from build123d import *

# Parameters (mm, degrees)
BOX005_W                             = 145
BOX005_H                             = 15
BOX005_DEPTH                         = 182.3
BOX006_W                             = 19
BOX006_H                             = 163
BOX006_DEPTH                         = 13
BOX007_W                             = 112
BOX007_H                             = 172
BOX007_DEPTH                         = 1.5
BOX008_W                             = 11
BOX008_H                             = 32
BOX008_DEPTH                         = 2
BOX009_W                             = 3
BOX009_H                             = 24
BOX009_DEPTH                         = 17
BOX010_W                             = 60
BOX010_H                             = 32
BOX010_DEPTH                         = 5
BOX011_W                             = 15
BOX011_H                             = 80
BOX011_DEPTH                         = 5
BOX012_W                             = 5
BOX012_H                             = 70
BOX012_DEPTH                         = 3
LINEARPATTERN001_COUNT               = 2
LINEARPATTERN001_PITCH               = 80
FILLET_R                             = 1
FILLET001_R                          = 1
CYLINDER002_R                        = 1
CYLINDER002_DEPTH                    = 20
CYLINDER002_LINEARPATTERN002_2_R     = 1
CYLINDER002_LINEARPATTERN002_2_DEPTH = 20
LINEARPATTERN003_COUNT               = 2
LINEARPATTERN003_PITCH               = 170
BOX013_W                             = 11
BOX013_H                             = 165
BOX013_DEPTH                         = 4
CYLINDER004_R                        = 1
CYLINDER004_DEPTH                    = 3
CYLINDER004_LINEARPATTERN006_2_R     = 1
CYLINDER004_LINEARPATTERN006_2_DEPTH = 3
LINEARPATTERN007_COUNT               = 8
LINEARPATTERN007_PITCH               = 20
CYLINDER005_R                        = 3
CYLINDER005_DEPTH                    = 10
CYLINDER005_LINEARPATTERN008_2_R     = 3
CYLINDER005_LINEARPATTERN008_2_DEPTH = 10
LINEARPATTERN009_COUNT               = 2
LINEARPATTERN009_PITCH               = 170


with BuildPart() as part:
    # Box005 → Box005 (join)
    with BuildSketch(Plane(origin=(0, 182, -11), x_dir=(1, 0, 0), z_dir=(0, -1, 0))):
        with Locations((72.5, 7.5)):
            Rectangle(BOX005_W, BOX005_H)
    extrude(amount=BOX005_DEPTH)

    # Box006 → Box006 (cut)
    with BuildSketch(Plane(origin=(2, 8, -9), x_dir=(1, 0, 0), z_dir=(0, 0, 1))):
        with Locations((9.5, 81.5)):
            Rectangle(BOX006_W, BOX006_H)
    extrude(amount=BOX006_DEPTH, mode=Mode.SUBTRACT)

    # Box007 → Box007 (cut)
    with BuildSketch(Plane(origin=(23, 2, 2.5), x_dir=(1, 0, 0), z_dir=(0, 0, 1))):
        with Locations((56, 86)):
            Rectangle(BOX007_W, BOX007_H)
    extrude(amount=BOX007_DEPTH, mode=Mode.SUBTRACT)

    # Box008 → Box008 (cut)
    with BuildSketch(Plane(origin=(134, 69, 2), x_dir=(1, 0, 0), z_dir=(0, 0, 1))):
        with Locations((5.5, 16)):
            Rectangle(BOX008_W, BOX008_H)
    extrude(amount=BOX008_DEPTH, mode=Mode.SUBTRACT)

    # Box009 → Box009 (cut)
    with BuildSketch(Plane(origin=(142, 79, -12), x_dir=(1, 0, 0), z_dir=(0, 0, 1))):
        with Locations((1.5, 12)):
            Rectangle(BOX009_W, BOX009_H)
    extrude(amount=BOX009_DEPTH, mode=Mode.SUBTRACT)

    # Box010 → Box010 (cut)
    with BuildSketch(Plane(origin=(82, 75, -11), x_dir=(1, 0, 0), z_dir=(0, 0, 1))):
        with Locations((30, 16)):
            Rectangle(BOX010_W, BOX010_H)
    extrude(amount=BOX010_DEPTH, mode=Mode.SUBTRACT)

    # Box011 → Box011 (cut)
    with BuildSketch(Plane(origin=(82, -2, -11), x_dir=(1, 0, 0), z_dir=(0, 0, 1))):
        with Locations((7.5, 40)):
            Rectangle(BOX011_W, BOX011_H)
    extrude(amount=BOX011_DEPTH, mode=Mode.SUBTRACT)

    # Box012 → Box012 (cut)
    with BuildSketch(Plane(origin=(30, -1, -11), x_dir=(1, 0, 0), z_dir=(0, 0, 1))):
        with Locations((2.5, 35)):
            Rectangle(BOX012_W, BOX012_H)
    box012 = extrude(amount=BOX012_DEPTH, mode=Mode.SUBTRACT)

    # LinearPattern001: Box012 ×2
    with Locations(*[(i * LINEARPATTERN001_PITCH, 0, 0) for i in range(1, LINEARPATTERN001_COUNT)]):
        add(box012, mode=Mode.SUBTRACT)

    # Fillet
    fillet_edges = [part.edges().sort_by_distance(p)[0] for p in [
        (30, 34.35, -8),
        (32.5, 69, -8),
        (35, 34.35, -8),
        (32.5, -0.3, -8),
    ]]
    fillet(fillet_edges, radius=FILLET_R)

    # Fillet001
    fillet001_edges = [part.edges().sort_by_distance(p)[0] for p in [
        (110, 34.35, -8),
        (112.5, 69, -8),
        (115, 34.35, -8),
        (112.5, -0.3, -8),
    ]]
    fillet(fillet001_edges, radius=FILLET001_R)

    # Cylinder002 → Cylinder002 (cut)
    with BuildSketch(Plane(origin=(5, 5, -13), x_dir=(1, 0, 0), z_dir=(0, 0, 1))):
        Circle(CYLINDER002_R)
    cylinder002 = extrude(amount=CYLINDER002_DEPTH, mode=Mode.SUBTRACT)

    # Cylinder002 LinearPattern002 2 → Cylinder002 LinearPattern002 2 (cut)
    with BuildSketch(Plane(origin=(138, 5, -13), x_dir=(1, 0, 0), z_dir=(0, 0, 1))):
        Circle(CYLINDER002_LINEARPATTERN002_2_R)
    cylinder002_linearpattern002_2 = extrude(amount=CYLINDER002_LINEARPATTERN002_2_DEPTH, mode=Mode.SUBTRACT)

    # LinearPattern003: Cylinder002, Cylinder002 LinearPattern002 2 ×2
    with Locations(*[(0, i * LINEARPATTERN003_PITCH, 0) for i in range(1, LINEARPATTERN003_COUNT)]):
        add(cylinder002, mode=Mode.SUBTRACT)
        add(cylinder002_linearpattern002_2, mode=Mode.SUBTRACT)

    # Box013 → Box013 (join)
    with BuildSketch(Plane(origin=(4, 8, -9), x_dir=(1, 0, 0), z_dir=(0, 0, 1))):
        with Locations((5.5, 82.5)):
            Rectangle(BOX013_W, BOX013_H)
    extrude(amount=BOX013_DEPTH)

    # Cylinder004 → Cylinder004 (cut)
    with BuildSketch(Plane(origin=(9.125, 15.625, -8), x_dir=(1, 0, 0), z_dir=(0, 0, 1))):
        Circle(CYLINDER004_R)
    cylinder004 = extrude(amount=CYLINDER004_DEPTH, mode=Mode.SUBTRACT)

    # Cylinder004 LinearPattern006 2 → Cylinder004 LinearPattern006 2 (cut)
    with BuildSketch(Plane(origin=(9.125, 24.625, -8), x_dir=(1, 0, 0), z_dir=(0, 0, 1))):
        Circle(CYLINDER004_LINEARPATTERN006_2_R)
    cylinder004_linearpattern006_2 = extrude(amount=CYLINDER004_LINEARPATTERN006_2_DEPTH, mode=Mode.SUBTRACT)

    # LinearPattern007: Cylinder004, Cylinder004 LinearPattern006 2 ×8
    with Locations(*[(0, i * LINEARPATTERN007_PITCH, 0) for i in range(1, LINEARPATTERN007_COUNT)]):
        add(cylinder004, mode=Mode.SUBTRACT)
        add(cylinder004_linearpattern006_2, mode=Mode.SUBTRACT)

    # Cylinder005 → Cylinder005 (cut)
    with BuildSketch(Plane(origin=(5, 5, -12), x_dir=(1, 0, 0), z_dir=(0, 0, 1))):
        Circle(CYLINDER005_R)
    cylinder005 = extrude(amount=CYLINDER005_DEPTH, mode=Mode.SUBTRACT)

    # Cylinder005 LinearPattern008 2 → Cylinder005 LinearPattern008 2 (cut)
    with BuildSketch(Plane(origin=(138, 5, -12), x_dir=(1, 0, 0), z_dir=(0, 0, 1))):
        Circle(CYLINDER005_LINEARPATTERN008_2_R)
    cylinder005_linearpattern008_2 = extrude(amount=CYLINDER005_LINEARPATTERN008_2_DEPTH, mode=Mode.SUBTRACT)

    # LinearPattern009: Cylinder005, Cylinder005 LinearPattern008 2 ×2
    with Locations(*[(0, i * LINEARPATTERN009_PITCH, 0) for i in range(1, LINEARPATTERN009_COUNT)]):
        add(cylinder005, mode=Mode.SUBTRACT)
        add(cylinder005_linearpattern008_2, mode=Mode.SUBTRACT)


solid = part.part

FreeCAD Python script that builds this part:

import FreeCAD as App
import Part
import Sketcher


def edges_at(feature, points):
    """Names of the edges that pass closest to the given points."""
    edges = feature.Shape.Edges
    near = lambda p: min(range(len(edges)), key=lambda i: edges[i].distToShape(Part.Vertex(*p))[0])
    return sorted({f"Edge{near(p) + 1}" for p in points})


def add_polygon(sketch, points):
    """Adds a closed chain of lines whose ends are joined by coincident constraints."""
    first, n = sketch.GeometryCount, len(points)
    for a, b in zip(points, points[1:] + points[:1]):
        sketch.addGeometry(Part.LineSegment(App.Vector(*a, 0), App.Vector(*b, 0)), False)
    for i in range(n):
        sketch.addConstraint(Sketcher.Constraint("Coincident", first + i, 2, first + (i + 1) % n, 1))

doc = App.newDocument("Part")
body = doc.addObject("PartDesign::Body", "Body")

# Sketch on XZ plane
sketch1 = body.newObject("Sketcher::SketchObject", "Sketch")
sketch1.AttachmentSupport = (doc.getObject("XZ_Plane"), [""])
sketch1.MapMode = "FlatFace"
sketch1.AttachmentOffset = App.Placement(App.Vector(0, 0, -182), App.Rotation())
add_polygon(sketch1, [(0, 4), (0, -11), (145, -11), (145, 4)])  # lines 0-3
sketch1.addConstraint([
    Sketcher.Constraint("Vertical", 0),
    Sketcher.Constraint("Horizontal", 1),
    Sketcher.Constraint("Vertical", 2),
    Sketcher.Constraint("Horizontal", 3),
    Sketcher.Constraint("PointOnObject", 0, 2, -2),
    Sketcher.Constraint("DistanceX", 1, 1, 1, 2, 145.0),
    Sketcher.Constraint("DistanceY", 0, 2, 0, 1, 15.0),
    Sketcher.Constraint("DistanceY", 0, 2, -1, 1, 11.0),
])
pad1 = body.newObject("PartDesign::Pad", "Pad")
pad1.Profile = sketch1
pad1.Length = 182.3

# Sketch on XY plane
sketch2 = body.newObject("Sketcher::SketchObject", "Sketch001")
sketch2.AttachmentSupport = (doc.getObject("XY_Plane"), [""])
sketch2.MapMode = "FlatFace"
sketch2.AttachmentOffset = App.Placement(App.Vector(0, 0, -9), App.Rotation())
add_polygon(sketch2, [(2, 171), (2, 8), (21, 8), (21, 171)])  # lines 0-3
sketch2.addConstraint([
    Sketcher.Constraint("Vertical", 0),
    Sketcher.Constraint("Horizontal", 1),
    Sketcher.Constraint("Vertical", 2),
    Sketcher.Constraint("Horizontal", 3),
    Sketcher.Constraint("DistanceX", 1, 1, 1, 2, 19.0),
    Sketcher.Constraint("DistanceY", 0, 2, 0, 1, 163.0),
    Sketcher.Constraint("DistanceX", -1, 1, 0, 2, 2.0),
    Sketcher.Constraint("DistanceY", -1, 1, 0, 2, 8.0),
])
pocket1 = body.newObject("PartDesign::Pocket", "Pocket")
pocket1.Profile = sketch2
pocket1.Length = 13
pocket1.Reversed = True

# Sketch on XY plane
sketch3 = body.newObject("Sketcher::SketchObject", "Sketch002")
sketch3.AttachmentSupport = (doc.getObject("XY_Plane"), [""])
sketch3.MapMode = "FlatFace"
sketch3.AttachmentOffset = App.Placement(App.Vector(0, 0, 2.5), App.Rotation())
add_polygon(sketch3, [(23, 174), (23, 2), (135, 2), (135, 174)])  # lines 0-3
sketch3.addConstraint([
    Sketcher.Constraint("Vertical", 0),
    Sketcher.Constraint("Horizontal", 1),
    Sketcher.Constraint("Vertical", 2),
    Sketcher.Constraint("Horizontal", 3),
    Sketcher.Constraint("DistanceX", 1, 1, 1, 2, 112.0),
    Sketcher.Constraint("DistanceY", 0, 2, 0, 1, 172.0),
    Sketcher.Constraint("DistanceX", -1, 1, 0, 2, 23.0),
    Sketcher.Constraint("DistanceY", -1, 1, 0, 2, 2.0),
])
pocket2 = body.newObject("PartDesign::Pocket", "Pocket001")
pocket2.Profile = sketch3
pocket2.Length = 1.5
pocket2.Reversed = True

# Sketch on XY plane
sketch4 = body.newObject("Sketcher::SketchObject", "Sketch003")
sketch4.AttachmentSupport = (doc.getObject("XY_Plane"), [""])
sketch4.MapMode = "FlatFace"
sketch4.AttachmentOffset = App.Placement(App.Vector(0, 0, 2), App.Rotation())
add_polygon(sketch4, [(134, 101), (134, 69), (145, 69), (145, 101)])  # lines 0-3
sketch4.addConstraint([
    Sketcher.Constraint("Vertical", 0),
    Sketcher.Constraint("Horizontal", 1),
    Sketcher.Constraint("Vertical", 2),
    Sketcher.Constraint("Horizontal", 3),
    Sketcher.Constraint("DistanceX", 1, 1, 1, 2, 11.0),
    Sketcher.Constraint("DistanceY", 0, 2, 0, 1, 32.0),
    Sketcher.Constraint("DistanceX", -1, 1, 0, 2, 134.0),
    Sketcher.Constraint("DistanceY", -1, 1, 0, 2, 69.0),
])
pocket3 = body.newObject("PartDesign::Pocket", "Pocket002")
pocket3.Profile = sketch4
pocket3.Length = 2
pocket3.Reversed = True

# Sketch on XY plane
sketch5 = body.newObject("Sketcher::SketchObject", "Sketch004")
sketch5.AttachmentSupport = (doc.getObject("XY_Plane"), [""])
sketch5.MapMode = "FlatFace"
sketch5.AttachmentOffset = App.Placement(App.Vector(0, 0, -12), App.Rotation())
add_polygon(sketch5, [(142, 103), (142, 79), (145, 79), (145, 103)])  # lines 0-3
sketch5.addConstraint([
    Sketcher.Constraint("Vertical", 0),
    Sketcher.Constraint("Horizontal", 1),
    Sketcher.Constraint("Vertical", 2),
    Sketcher.Constraint("Horizontal", 3),
    Sketcher.Constraint("DistanceX", 1, 1, 1, 2, 3.0),
    Sketcher.Constraint("DistanceY", 0, 2, 0, 1, 24.0),
    Sketcher.Constraint("DistanceX", -1, 1, 0, 2, 142.0),
    Sketcher.Constraint("DistanceY", -1, 1, 0, 2, 79.0),
])
pocket4 = body.newObject("PartDesign::Pocket", "Pocket003")
pocket4.Profile = sketch5
pocket4.Length = 17
pocket4.Reversed = True

# Sketch on XY plane
sketch6 = body.newObject("Sketcher::SketchObject", "Sketch005")
sketch6.AttachmentSupport = (doc.getObject("XY_Plane"), [""])
sketch6.MapMode = "FlatFace"
sketch6.AttachmentOffset = App.Placement(App.Vector(0, 0, -11), App.Rotation())
add_polygon(sketch6, [(82, 107), (82, 75), (142, 75), (142, 107)])  # lines 0-3
sketch6.addConstraint([
    Sketcher.Constraint("Vertical", 0),
    Sketcher.Constraint("Horizontal", 1),
    Sketcher.Constraint("Vertical", 2),
    Sketcher.Constraint("Horizontal", 3),
    Sketcher.Constraint("DistanceX", 1, 1, 1, 2, 60.0),
    Sketcher.Constraint("DistanceY", 0, 2, 0, 1, 32.0),
    Sketcher.Constraint("DistanceX", -1, 1, 0, 2, 82.0),
    Sketcher.Constraint("DistanceY", -1, 1, 0, 2, 75.0),
])
pocket5 = body.newObject("PartDesign::Pocket", "Pocket004")
pocket5.Profile = sketch6
pocket5.Length = 5
pocket5.Reversed = True

# Sketch on XY plane
sketch7 = body.newObject("Sketcher::SketchObject", "Sketch006")
sketch7.AttachmentSupport = (doc.getObject("XY_Plane"), [""])
sketch7.MapMode = "FlatFace"
sketch7.AttachmentOffset = App.Placement(App.Vector(0, 0, -11), App.Rotation())
add_polygon(sketch7, [(82, 78), (82, -2), (97, -2), (97, 78)])  # lines 0-3
sketch7.addConstraint([
    Sketcher.Constraint("Vertical", 0),
    Sketcher.Constraint("Horizontal", 1),
    Sketcher.Constraint("Vertical", 2),
    Sketcher.Constraint("Horizontal", 3),
    Sketcher.Constraint("DistanceX", 1, 1, 1, 2, 15.0),
    Sketcher.Constraint("DistanceY", 0, 2, 0, 1, 80.0),
    Sketcher.Constraint("DistanceX", -1, 1, 0, 2, 82.0),
    Sketcher.Constraint("DistanceY", 0, 2, -1, 1, 2.0),
])
pocket6 = body.newObject("PartDesign::Pocket", "Pocket005")
pocket6.Profile = sketch7
pocket6.Length = 5
pocket6.Reversed = True

# Sketch on XY plane
sketch8 = body.newObject("Sketcher::SketchObject", "Sketch007")
sketch8.AttachmentSupport = (doc.getObject("XY_Plane"), [""])
sketch8.MapMode = "FlatFace"
sketch8.AttachmentOffset = App.Placement(App.Vector(0, 0, -11), App.Rotation())
add_polygon(sketch8, [(30, 69), (30, -1), (35, -1), (35, 69)])  # lines 0-3
sketch8.addConstraint([
    Sketcher.Constraint("Vertical", 0),
    Sketcher.Constraint("Horizontal", 1),
    Sketcher.Constraint("Vertical", 2),
    Sketcher.Constraint("Horizontal", 3),
    Sketcher.Constraint("DistanceX", 1, 1, 1, 2, 5.0),
    Sketcher.Constraint("DistanceY", 0, 2, 0, 1, 70.0),
    Sketcher.Constraint("DistanceX", -1, 1, 0, 2, 30.0),
    Sketcher.Constraint("DistanceY", 0, 2, -1, 1, 1.0),
])
pocket7 = body.newObject("PartDesign::Pocket", "Pocket006")
pocket7.Profile = sketch8
pocket7.Length = 3
pocket7.Reversed = True
doc.recompute()

linearpattern = body.newObject("PartDesign::LinearPattern", "LinearPattern")
linearpattern.Originals = [pocket7]
linearpattern.Direction = (doc.getObject("X_Axis"), [""])
linearpattern.Mode = "offset"
linearpattern.Offset = 80
linearpattern.Occurrences = 2
body.Tip = linearpattern
doc.recompute()

fillet = body.newObject("PartDesign::Fillet", "Fillet")
fillet.Base = (linearpattern, edges_at(linearpattern, [
    (30, 34.35, -8),
    (32.5, 69, -8),
    (35, 34.35, -8),
    (32.5, -0.3, -8),
]))
fillet.Radius = 1
doc.recompute()

fillet2 = body.newObject("PartDesign::Fillet", "Fillet001")
fillet2.Base = (fillet, edges_at(fillet, [
    (110, 34.35, -8),
    (112.5, 69, -8),
    (115, 34.35, -8),
    (112.5, -0.3, -8),
]))
fillet2.Radius = 1

# Sketch on XY plane
sketch9 = body.newObject("Sketcher::SketchObject", "Sketch008")
sketch9.AttachmentSupport = (doc.getObject("XY_Plane"), [""])
sketch9.MapMode = "FlatFace"
sketch9.AttachmentOffset = App.Placement(App.Vector(0, 0, -13), App.Rotation())
sketch9.addGeometry(Part.Circle(App.Vector(5, 5, 0), App.Vector(0, 0, 1), 1), False)
sketch9.addConstraint([
    Sketcher.Constraint("Diameter", 0, 2.0),
    Sketcher.Constraint("DistanceX", -1, 1, 0, 3, 5.0),
    Sketcher.Constraint("DistanceY", -1, 1, 0, 3, 5.0),
])
pocket8 = body.newObject("PartDesign::Pocket", "Pocket007")
pocket8.Profile = sketch9
pocket8.Length = 20
pocket8.Reversed = True

# Sketch on XY plane
sketch10 = body.newObject("Sketcher::SketchObject", "Sketch009")
sketch10.AttachmentSupport = (doc.getObject("XY_Plane"), [""])
sketch10.MapMode = "FlatFace"
sketch10.AttachmentOffset = App.Placement(App.Vector(0, 0, -13), App.Rotation())
sketch10.addGeometry(Part.Circle(App.Vector(138, 5, 0), App.Vector(0, 0, 1), 1), False)
sketch10.addConstraint([
    Sketcher.Constraint("Diameter", 0, 2.0),
    Sketcher.Constraint("DistanceX", -1, 1, 0, 3, 138.0),
    Sketcher.Constraint("DistanceY", -1, 1, 0, 3, 5.0),
])
pocket9 = body.newObject("PartDesign::Pocket", "Pocket008")
pocket9.Profile = sketch10
pocket9.Length = 20
pocket9.Reversed = True
doc.recompute()

linearpattern2 = body.newObject("PartDesign::LinearPattern", "LinearPattern001")
linearpattern2.Originals = [pocket8, pocket9]
linearpattern2.Direction = (doc.getObject("Y_Axis"), [""])
linearpattern2.Mode = "offset"
linearpattern2.Offset = 170
linearpattern2.Occurrences = 2
body.Tip = linearpattern2

# Sketch on XY plane
sketch11 = body.newObject("Sketcher::SketchObject", "Sketch010")
sketch11.AttachmentSupport = (doc.getObject("XY_Plane"), [""])
sketch11.MapMode = "FlatFace"
sketch11.AttachmentOffset = App.Placement(App.Vector(0, 0, -9), App.Rotation())
add_polygon(sketch11, [(4, 173), (4, 8), (15, 8), (15, 173)])  # lines 0-3
sketch11.addConstraint([
    Sketcher.Constraint("Vertical", 0),
    Sketcher.Constraint("Horizontal", 1),
    Sketcher.Constraint("Vertical", 2),
    Sketcher.Constraint("Horizontal", 3),
    Sketcher.Constraint("DistanceX", 1, 1, 1, 2, 11.0),
    Sketcher.Constraint("DistanceY", 0, 2, 0, 1, 165.0),
    Sketcher.Constraint("DistanceX", -1, 1, 0, 2, 4.0),
    Sketcher.Constraint("DistanceY", -1, 1, 0, 2, 8.0),
])
pad2 = body.newObject("PartDesign::Pad", "Pad001")
pad2.Profile = sketch11
pad2.Length = 4

# Sketch on XY plane
sketch12 = body.newObject("Sketcher::SketchObject", "Sketch011")
sketch12.AttachmentSupport = (doc.getObject("XY_Plane"), [""])
sketch12.MapMode = "FlatFace"
sketch12.AttachmentOffset = App.Placement(App.Vector(0, 0, -8), App.Rotation())
sketch12.addGeometry(Part.Circle(App.Vector(9.1, 15.6, 0), App.Vector(0, 0, 1), 1), False)
sketch12.addConstraint([
    Sketcher.Constraint("Diameter", 0, 2.0),
    Sketcher.Constraint("DistanceX", -1, 1, 0, 3, 9.125),
    Sketcher.Constraint("DistanceY", -1, 1, 0, 3, 15.625),
])
pocket10 = body.newObject("PartDesign::Pocket", "Pocket009")
pocket10.Profile = sketch12
pocket10.Length = 3
pocket10.Reversed = True

# Sketch on XY plane
sketch13 = body.newObject("Sketcher::SketchObject", "Sketch012")
sketch13.AttachmentSupport = (doc.getObject("XY_Plane"), [""])
sketch13.MapMode = "FlatFace"
sketch13.AttachmentOffset = App.Placement(App.Vector(0, 0, -8), App.Rotation())
sketch13.addGeometry(Part.Circle(App.Vector(9.1, 24.6, 0), App.Vector(0, 0, 1), 1), False)
sketch13.addConstraint([
    Sketcher.Constraint("Diameter", 0, 2.0),
    Sketcher.Constraint("DistanceX", -1, 1, 0, 3, 9.125),
    Sketcher.Constraint("DistanceY", -1, 1, 0, 3, 24.625),
])
pocket11 = body.newObject("PartDesign::Pocket", "Pocket010")
pocket11.Profile = sketch13
pocket11.Length = 3
pocket11.Reversed = True
doc.recompute()

linearpattern3 = body.newObject("PartDesign::LinearPattern", "LinearPattern002")
linearpattern3.Originals = [pocket10, pocket11]
linearpattern3.Direction = (doc.getObject("Y_Axis"), [""])
linearpattern3.Mode = "offset"
linearpattern3.Offset = 20
linearpattern3.Occurrences = 8
body.Tip = linearpattern3

# Sketch on XY plane
sketch14 = body.newObject("Sketcher::SketchObject", "Sketch013")
sketch14.AttachmentSupport = (doc.getObject("XY_Plane"), [""])
sketch14.MapMode = "FlatFace"
sketch14.AttachmentOffset = App.Placement(App.Vector(0, 0, -12), App.Rotation())
sketch14.addGeometry(Part.Circle(App.Vector(5, 5, 0), App.Vector(0, 0, 1), 3), False)
sketch14.addConstraint([
    Sketcher.Constraint("Diameter", 0, 6.0),
    Sketcher.Constraint("DistanceX", -1, 1, 0, 3, 5.0),
    Sketcher.Constraint("DistanceY", -1, 1, 0, 3, 5.0),
])
pocket12 = body.newObject("PartDesign::Pocket", "Pocket011")
pocket12.Profile = sketch14
pocket12.Length = 10
pocket12.Reversed = True

# Sketch on XY plane
sketch15 = body.newObject("Sketcher::SketchObject", "Sketch014")
sketch15.AttachmentSupport = (doc.getObject("XY_Plane"), [""])
sketch15.MapMode = "FlatFace"
sketch15.AttachmentOffset = App.Placement(App.Vector(0, 0, -12), App.Rotation())
sketch15.addGeometry(Part.Circle(App.Vector(138, 5, 0), App.Vector(0, 0, 1), 3), False)
sketch15.addConstraint([
    Sketcher.Constraint("Diameter", 0, 6.0),
    Sketcher.Constraint("DistanceX", -1, 1, 0, 3, 138.0),
    Sketcher.Constraint("DistanceY", -1, 1, 0, 3, 5.0),
])
pocket13 = body.newObject("PartDesign::Pocket", "Pocket012")
pocket13.Profile = sketch15
pocket13.Length = 10
pocket13.Reversed = True
doc.recompute()

linearpattern4 = body.newObject("PartDesign::LinearPattern", "LinearPattern003")
linearpattern4.Originals = [pocket12, pocket13]
linearpattern4.Direction = (doc.getObject("Y_Axis"), [""])
linearpattern4.Mode = "offset"
linearpattern4.Offset = 170
linearpattern4.Occurrences = 2
body.Tip = linearpattern4

doc.recompute()
